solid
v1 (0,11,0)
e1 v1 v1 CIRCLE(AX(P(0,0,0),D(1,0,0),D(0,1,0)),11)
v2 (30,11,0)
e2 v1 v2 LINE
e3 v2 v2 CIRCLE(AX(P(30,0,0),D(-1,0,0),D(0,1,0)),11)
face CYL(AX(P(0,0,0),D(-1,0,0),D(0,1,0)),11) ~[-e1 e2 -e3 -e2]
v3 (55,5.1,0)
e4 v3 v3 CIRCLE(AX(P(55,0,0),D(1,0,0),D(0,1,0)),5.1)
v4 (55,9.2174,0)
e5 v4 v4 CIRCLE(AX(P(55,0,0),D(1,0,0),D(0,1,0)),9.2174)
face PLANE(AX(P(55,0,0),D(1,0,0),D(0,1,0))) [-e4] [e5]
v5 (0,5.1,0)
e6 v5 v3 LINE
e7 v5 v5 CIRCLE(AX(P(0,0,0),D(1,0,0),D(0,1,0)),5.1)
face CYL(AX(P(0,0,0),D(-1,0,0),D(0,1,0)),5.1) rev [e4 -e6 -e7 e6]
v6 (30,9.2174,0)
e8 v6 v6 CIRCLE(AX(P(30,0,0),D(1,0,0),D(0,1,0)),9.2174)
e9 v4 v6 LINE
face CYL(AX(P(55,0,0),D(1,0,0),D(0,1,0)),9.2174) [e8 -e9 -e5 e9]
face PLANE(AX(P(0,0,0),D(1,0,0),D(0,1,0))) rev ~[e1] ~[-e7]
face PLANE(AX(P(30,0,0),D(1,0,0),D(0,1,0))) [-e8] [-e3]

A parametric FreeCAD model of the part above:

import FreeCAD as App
import Part
import Sketcher

V = App.Vector

doc = App.newDocument("Part")
body = doc.addObject("PartDesign::Body", "Body")

# Sketch on YZ plane
sketch1 = body.newObject("Sketcher::SketchObject", "Sketch")
sketch1.AttachmentSupport = (doc.getObject("YZ_Plane"), [""])
sketch1.MapMode = "FlatFace"
sketch1.addGeometry([
    Part.Circle(V(0, 0, 0), V(0, 0, 1), 11),
    Part.Circle(V(0, 0, 0), V(0, 0, 1), 5),
], False)
sketch1.addConstraint([
    Sketcher.Constraint("Coincident", 0, 3, -1, 1),
    Sketcher.Constraint("Coincident", 1, 3, -1, 1),
    Sketcher.Constraint("Diameter", 0, 22.0),
    Sketcher.Constraint("Diameter", 1, 10.2),
])
pad1 = body.newObject("PartDesign::Pad", "Pad")
pad1.Profile = sketch1
pad1.Length = 55

# Sketch on YZ plane
sketch2 = body.newObject("Sketcher::SketchObject", "Sketch001")
sketch2.AttachmentSupport = (doc.getObject("YZ_Plane"), [""])
sketch2.MapMode = "FlatFace"
sketch2.AttachmentOffset = App.Placement(V(0, 0, 55), App.Rotation())
sketch2.addGeometry([
    Part.Circle(V(0, 0, 0), V(0, 0, 1), 13),
    Part.Circle(V(0, 0, 0), V(0, 0, 1), 9),
], False)
sketch2.addConstraint([
    Sketcher.Constraint("Coincident", 0, 3, -1, 1),
    Sketcher.Constraint("Coincident", 1, 3, -1, 1),
    Sketcher.Constraint("Diameter", 1, 18.4348),
    Sketcher.Constraint("Diameter", 0, 25.682258),
])
pocket1 = body.newObject("PartDesign::Pocket", "Pocket")
pocket1.Profile = sketch2
pocket1.Length = 25

doc.recompute()
